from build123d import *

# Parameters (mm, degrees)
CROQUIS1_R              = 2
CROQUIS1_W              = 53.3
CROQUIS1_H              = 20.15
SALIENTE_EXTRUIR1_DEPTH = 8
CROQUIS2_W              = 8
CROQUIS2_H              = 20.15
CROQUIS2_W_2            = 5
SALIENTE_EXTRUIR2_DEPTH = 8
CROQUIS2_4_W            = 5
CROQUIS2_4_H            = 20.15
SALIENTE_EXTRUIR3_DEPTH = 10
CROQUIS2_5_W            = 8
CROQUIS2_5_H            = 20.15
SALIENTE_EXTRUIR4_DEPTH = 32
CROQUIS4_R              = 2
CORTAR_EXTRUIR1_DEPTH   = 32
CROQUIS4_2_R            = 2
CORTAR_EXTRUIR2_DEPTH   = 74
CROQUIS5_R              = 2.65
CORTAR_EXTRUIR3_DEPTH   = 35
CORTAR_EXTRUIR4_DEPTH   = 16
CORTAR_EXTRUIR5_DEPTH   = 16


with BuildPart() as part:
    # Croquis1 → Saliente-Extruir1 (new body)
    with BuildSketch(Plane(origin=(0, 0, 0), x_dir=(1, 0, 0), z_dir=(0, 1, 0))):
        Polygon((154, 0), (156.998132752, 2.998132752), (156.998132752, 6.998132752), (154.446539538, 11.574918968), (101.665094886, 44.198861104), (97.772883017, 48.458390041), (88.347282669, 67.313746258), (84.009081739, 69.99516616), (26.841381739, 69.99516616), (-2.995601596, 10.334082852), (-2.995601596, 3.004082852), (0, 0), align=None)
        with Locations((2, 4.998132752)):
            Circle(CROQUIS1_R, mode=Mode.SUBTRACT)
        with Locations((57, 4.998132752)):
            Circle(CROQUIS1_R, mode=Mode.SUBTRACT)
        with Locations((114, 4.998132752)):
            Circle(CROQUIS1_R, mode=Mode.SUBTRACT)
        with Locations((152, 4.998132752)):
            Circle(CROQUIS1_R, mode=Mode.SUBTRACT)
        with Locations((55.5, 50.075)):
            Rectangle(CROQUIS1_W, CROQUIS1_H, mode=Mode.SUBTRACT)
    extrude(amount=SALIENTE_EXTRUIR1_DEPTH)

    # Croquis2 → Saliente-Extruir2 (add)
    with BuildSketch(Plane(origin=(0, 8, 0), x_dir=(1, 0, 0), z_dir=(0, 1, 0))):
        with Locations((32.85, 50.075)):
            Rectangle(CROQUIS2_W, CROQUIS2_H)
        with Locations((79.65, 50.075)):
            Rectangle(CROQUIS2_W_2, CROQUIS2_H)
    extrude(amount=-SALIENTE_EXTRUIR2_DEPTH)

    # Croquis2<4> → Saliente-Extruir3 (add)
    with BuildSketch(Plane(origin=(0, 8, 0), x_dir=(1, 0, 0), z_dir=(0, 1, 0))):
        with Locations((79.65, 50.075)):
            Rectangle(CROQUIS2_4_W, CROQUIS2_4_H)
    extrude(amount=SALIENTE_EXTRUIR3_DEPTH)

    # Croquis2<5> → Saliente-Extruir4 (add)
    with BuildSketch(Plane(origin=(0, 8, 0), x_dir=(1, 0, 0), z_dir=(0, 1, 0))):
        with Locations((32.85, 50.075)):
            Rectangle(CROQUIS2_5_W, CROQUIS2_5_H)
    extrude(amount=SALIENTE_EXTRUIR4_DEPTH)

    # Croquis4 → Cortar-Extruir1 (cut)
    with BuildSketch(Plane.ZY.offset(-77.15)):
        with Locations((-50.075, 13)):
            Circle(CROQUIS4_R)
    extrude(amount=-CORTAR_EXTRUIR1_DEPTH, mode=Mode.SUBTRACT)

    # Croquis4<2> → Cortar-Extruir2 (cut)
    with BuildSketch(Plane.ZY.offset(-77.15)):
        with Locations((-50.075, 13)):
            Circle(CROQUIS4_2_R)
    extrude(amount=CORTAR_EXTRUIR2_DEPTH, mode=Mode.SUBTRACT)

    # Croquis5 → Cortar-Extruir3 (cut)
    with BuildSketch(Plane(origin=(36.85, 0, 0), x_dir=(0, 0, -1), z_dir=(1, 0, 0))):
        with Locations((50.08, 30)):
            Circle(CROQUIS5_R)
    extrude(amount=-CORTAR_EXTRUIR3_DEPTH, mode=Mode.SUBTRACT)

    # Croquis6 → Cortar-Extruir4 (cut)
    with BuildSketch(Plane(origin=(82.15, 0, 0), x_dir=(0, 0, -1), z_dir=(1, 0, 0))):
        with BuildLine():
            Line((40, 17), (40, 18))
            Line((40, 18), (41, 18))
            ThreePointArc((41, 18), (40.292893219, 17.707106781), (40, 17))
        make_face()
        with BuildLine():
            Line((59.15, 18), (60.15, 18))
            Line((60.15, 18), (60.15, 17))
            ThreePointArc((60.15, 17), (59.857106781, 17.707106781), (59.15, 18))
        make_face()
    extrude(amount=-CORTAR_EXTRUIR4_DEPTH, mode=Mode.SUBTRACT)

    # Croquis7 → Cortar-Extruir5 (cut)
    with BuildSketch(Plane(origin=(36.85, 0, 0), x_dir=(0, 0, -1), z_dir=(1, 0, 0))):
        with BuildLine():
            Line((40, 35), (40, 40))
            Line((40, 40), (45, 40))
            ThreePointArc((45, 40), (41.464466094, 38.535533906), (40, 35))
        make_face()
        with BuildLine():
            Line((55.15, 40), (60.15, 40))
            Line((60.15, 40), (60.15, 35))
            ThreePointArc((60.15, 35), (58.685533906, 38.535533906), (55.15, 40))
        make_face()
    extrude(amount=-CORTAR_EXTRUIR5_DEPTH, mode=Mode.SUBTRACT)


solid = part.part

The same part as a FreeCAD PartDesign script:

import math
import FreeCAD as App
import Part
import Sketcher
from FreeCAD import Vector
Q = App.Units.Quantity


def add_polygon(sketch, points):
    """Adds a closed chain of lines whose ends are joined by coincident constraints."""
    first, n = sketch.GeometryCount, len(points)
    for a, b in zip(points, points[1:] + points[:1]):
        sketch.addGeometry(Part.LineSegment(App.Vector(*a, 0), App.Vector(*b, 0)), False)
    for i in range(n):
        sketch.addConstraint(Sketcher.Constraint("Coincident", first + i, 2, first + (i + 1) % n, 1))

doc = App.newDocument("Part")
params = doc.addObject("Spreadsheet::Sheet", "Params")
for row, (alias, value) in enumerate([
    ("sketch1_diameter", "4 mm"),
    ("sketch1_width", "154 mm"),
    ("sketch1_height", "4 mm"),
    ("sketch1_width2", "53.3 mm"),
    ("sketch1_length", "5.1 mm"),
    ("pad1_length", "8 mm"),
    ("sketch2_width", "8 mm"),
    ("sketch2_width2", "5 mm"),
    ("sketch2_height", "20.15 mm"),
    ("pad2_length", "8 mm"),
    ("sketch3_width", "5 mm"),
    ("sketch3_height", "20.15 mm"),
    ("pad3_length", "10 mm"),
    ("sketch4_width", "8 mm"),
    ("sketch4_height", "20.15 mm"),
    ("pad4_length", "32 mm"),
    ("sketch5_diameter", "4 mm"),
    ("pocket1_length", "32 mm"),
    ("sketch6_diameter", "4 mm"),
    ("pocket2_length", "74 mm"),
    ("sketch7_diameter", "5.3 mm"),
    ("pocket3_length", "35 mm"),
    ("sketch8_radius", "1 mm"),
    ("pocket4_length", "16 mm"),
    ("sketch9_radius", "5 mm"),
    ("pocket5_length", "16 mm"),
], start=1):
    params.set(f"A{row}", alias)
    params.set(f"B{row}", "=" + value)
    params.setAlias(f"B{row}", alias)

body = doc.addObject("PartDesign::Body", "Body")

sketch1 = body.newObject("Sketcher::SketchObject", "Sketch")
sketch1.AttachmentSupport = (doc.getObject("XZ_Plane"), [""])
sketch1.MapMode = "FlatFace"
add_polygon(sketch1, [(154, 0), (157, -3), (157, -7), (154.4, -11.6), (101.7, -44.2), (97.8, -48.5), (88.3, -67.3), (84, -70), (26.8, -70), (-3, -10.3), (-3, -3), (0, 0)])
sketch1.addGeometry(Part.Circle(Vector(2, -5, 0), Vector(0, 0, 1), 2), False)
sketch1.addGeometry(Part.Circle(Vector(57, -5, 0), Vector(0, 0, 1), 2), False)
sketch1.addGeometry(Part.Circle(Vector(114, -5, 0), Vector(0, 0, 1), 2), False)
sketch1.addGeometry(Part.Circle(Vector(152, -5, 0), Vector(0, 0, 1), 2), False)
add_polygon(sketch1, [(82.2, -40), (28.9, -40), (28.9, -60.1), (82.2, -60.1)])
sketch1.addConstraint(Sketcher.Constraint("Vertical", 1))
sketch1.addConstraint(Sketcher.Constraint("Horizontal", 7))
sketch1.addConstraint(Sketcher.Constraint("Vertical", 9))
sketch1.addConstraint(Sketcher.Constraint("Horizontal", 11))
sketch1.addConstraint(Sketcher.Constraint("Horizontal", 16))
sketch1.addConstraint(Sketcher.Constraint("Vertical", 17))
sketch1.addConstraint(Sketcher.Constraint("Horizontal", 18))
sketch1.addConstraint(Sketcher.Constraint("Vertical", 19))
sketch1.addConstraint(Sketcher.Constraint("Coincident", 10, 2, -1, 1))
sketch1.addConstraint(Sketcher.Constraint("Equal", 12, 13))
sketch1.addConstraint(Sketcher.Constraint("Equal", 13, 14))
sketch1.addConstraint(Sketcher.Constraint("Equal", 14, 15))
sketch1.addConstraint(Sketcher.Constraint("Parallel", 3, 6))
sketch1.addConstraint(Sketcher.Constraint("Horizontal", 12, 3, 13, 3))
sketch1.addConstraint(Sketcher.Constraint("Horizontal", 13, 3, 14, 3))
sketch1.addConstraint(Sketcher.Constraint("Horizontal", 14, 3, 15, 3))
sketch1.addConstraint(Sketcher.Constraint("Diameter", 12, Q("4 mm")))
sketch1.addConstraint(Sketcher.Constraint("DistanceX", 11, 1, 11, 2, Q("154 mm")))
sketch1.addConstraint(Sketcher.Constraint("DistanceY", 1, 2, 1, 1, Q("4 mm")))
sketch1.addConstraint(Sketcher.Constraint("Angle", 0, Q("-45 deg")))
sketch1.addConstraint(Sketcher.Constraint("DistanceX", 16, 2, 16, 1, Q("53.3 mm")))
sketch1.addConstraint(Sketcher.Constraint("DistanceX", -1, 1, 12, 3, Q("2 mm")))
sketch1.addConstraint(Sketcher.Constraint("DistanceX", -1, 1, 13, 3, Q("57 mm")))
sketch1.addConstraint(Sketcher.Constraint("DistanceX", -1, 1, 14, 3, Q("114 mm")))
sketch1.addConstraint(Sketcher.Constraint("DistanceX", -1, 1, 15, 3, Q("152 mm")))
sketch1.addConstraint(Sketcher.Constraint("DistanceY", 16, 2, -1, 1, Q("40 mm")))
sketch1.addConstraint(Sketcher.Constraint("DistanceY", 15, 3, 0, 2, Q("2 mm")))
sketch1.addConstraint(Sketcher.Constraint("Distance", 6, Q("5.1 mm")))
sketch1.addConstraint(Sketcher.Constraint("DistanceY", 9, 1, 9, 2, Q("7.33 mm")))
sketch1.addConstraint(Sketcher.Constraint("DistanceY", 17, 2, 17, 1, Q("20.15 mm")))
sketch1.addConstraint(Sketcher.Constraint("Angle", 2, Q("-119.14 deg")))
sketch1.addConstraint(Sketcher.Constraint("Angle", 3, Q("-148.28 deg")))
sketch1.addConstraint(Sketcher.Constraint("Angle", 4, Q("-132.42 deg")))
sketch1.addConstraint(Sketcher.Constraint("Angle", 5, Q("-116.56 deg")))
sketch1.addConstraint(Sketcher.Constraint("Angle", 8, Q("116.57 deg")))
sketch1.addConstraint(Sketcher.Constraint("Distance", 0, Q("4.24 mm")))
sketch1.addConstraint(Sketcher.Constraint("Distance", 2, Q("5.24 mm")))
sketch1.addConstraint(Sketcher.Constraint("Distance", 3, Q("62.05 mm")))
sketch1.addConstraint(Sketcher.Constraint("Distance", 4, Q("5.77 mm")))
sketch1.addConstraint(Sketcher.Constraint("Distance", 5, Q("21.08 mm")))
sketch1.addConstraint(Sketcher.Constraint("DistanceX", -1, 1, 16, 2, Q("28.85 mm")))
sketch1.addConstraint(Sketcher.Constraint("Distance", 8, Q("66.706 mm")))
sketch1.addConstraint(Sketcher.Constraint("DistanceX", 7, 2, 7, 1, Q("57.1677 mm")))
sketch1.setExpression("Constraints[32]", "Params.sketch1_diameter")
sketch1.setExpression("Constraints[33]", "Params.sketch1_width")
sketch1.setExpression("Constraints[34]", "Params.sketch1_height")
sketch1.setExpression("Constraints[36]", "Params.sketch1_width2")
sketch1.setExpression("Constraints[43]", "Params.sketch1_length")
pad1 = body.newObject("PartDesign::Pad", "Pad")
pad1.Profile = sketch1
pad1.setExpression("Length", "Params.pad1_length")
pad1.Reversed = True

sketch2 = body.newObject("Sketcher::SketchObject", "Sketch001")
sketch2.AttachmentSupport = (doc.getObject("XZ_Plane"), [""])
sketch2.MapMode = "FlatFace"
sketch2.AttachmentOffset = App.Placement(Vector(0, 0, -8), App.Rotation())
add_polygon(sketch2, [(29, -60), (29, -40), (37, -40), (37, -60)])
add_polygon(sketch2, [(77, -60), (77, -40), (82, -40), (82, -60)])
sketch2.addConstraint(Sketcher.Constraint("Vertical", 0))
sketch2.addConstraint(Sketcher.Constraint("Horizontal", 1))
sketch2.addConstraint(Sketcher.Constraint("Vertical", 2))
sketch2.addConstraint(Sketcher.Constraint("Horizontal", 3))
sketch2.addConstraint(Sketcher.Constraint("Vertical", 4))
sketch2.addConstraint(Sketcher.Constraint("Horizontal", 5))
sketch2.addConstraint(Sketcher.Constraint("Vertical", 6))
sketch2.addConstraint(Sketcher.Constraint("Horizontal", 7))
sketch2.addConstraint(Sketcher.Constraint("Horizontal", 1, 2, 4, 2))
sketch2.addConstraint(Sketcher.Constraint("Horizontal", 3, 2, 6, 2))
sketch2.addConstraint(Sketcher.Constraint("DistanceX", 1, 1, 1, 2, Q("8 mm")))
sketch2.addConstraint(Sketcher.Constraint("DistanceX", 5, 1, 5, 2, Q("5 mm")))
sketch2.addConstraint(Sketcher.Constraint("DistanceY", 0, 2, -1, 1, Q("40 mm")))
sketch2.addConstraint(Sketcher.Constraint("DistanceY", 0, 1, 0, 2, Q("20.15 mm")))
sketch2.addConstraint(Sketcher.Constraint("DistanceX", 1, 2, 4, 2, Q("40.3 mm")))
sketch2.addConstraint(Sketcher.Constraint("DistanceX", -1, 1, 0, 2, Q("28.85 mm")))
sketch2.setExpression("Constraints[18]", "Params.sketch2_width")
sketch2.setExpression("Constraints[19]", "Params.sketch2_width2")
sketch2.setExpression("Constraints[21]", "Params.sketch2_height")
pad2 = body.newObject("PartDesign::Pad", "Pad001")
pad2.Profile = sketch2
pad2.setExpression("Length", "Params.pad2_length")

sketch3 = body.newObject("Sketcher::SketchObject", "Sketch002")
sketch3.AttachmentSupport = (doc.getObject("XZ_Plane"), [""])
sketch3.MapMode = "FlatFace"
sketch3.AttachmentOffset = App.Placement(Vector(0, 0, -8), App.Rotation())
add_polygon(sketch3, [(77, -60), (77, -40), (82, -40), (82, -60)])
sketch3.addConstraint(Sketcher.Constraint("Vertical", 0))
sketch3.addConstraint(Sketcher.Constraint("Horizontal", 1))
sketch3.addConstraint(Sketcher.Constraint("Vertical", 2))
sketch3.addConstraint(Sketcher.Constraint("Horizontal", 3))
sketch3.addConstraint(Sketcher.Constraint("DistanceX", 1, 1, 1, 2, Q("5 mm")))
sketch3.addConstraint(Sketcher.Constraint("DistanceY", 0, 2, -1, 1, Q("40 mm")))
sketch3.addConstraint(Sketcher.Constraint("DistanceY", 0, 1, 0, 2, Q("20.15 mm")))
sketch3.addConstraint(Sketcher.Constraint("DistanceX", -1, 1, 0, 2, Q("77.15 mm")))
sketch3.setExpression("Constraints[8]", "Params.sketch3_width")
sketch3.setExpression("Constraints[10]", "Params.sketch3_height")
pad3 = body.newObject("PartDesign::Pad", "Pad002")
pad3.Profile = sketch3
pad3.setExpression("Length", "Params.pad3_length")
pad3.Reversed = True

sketch4 = body.newObject("Sketcher::SketchObject", "Sketch003")
sketch4.AttachmentSupport = (doc.getObject("XZ_Plane"), [""])
sketch4.MapMode = "FlatFace"
sketch4.AttachmentOffset = App.Placement(Vector(0, 0, -8), App.Rotation())
add_polygon(sketch4, [(29, -60), (29, -40), (37, -40), (37, -60)])
sketch4.addConstraint(Sketcher.Constraint("Vertical", 0))
sketch4.addConstraint(Sketcher.Constraint("Horizontal", 1))
sketch4.addConstraint(Sketcher.Constraint("Vertical", 2))
sketch4.addConstraint(Sketcher.Constraint("Horizontal", 3))
sketch4.addConstraint(Sketcher.Constraint("DistanceX", 1, 1, 1, 2, Q("8 mm")))
sketch4.addConstraint(Sketcher.Constraint("DistanceY", 0, 2, -1, 1, Q("40 mm")))
sketch4.addConstraint(Sketcher.Constraint("DistanceY", 0, 1, 0, 2, Q("20.15 mm")))
sketch4.addConstraint(Sketcher.Constraint("DistanceX", -1, 1, 0, 2, Q("28.85 mm")))
sketch4.setExpression("Constraints[8]", "Params.sketch4_width")
sketch4.setExpression("Constraints[10]", "Params.sketch4_height")
pad4 = body.newObject("PartDesign::Pad", "Pad003")
pad4.Profile = sketch4
pad4.setExpression("Length", "Params.pad4_length")
pad4.Reversed = True

sketch5 = body.newObject("Sketcher::SketchObject", "Sketch004")
sketch5.AttachmentSupport = (doc.getObject("YZ_Plane"), [""])
sketch5.MapMode = "FlatFace"
sketch5.AttachmentOffset = App.Placement(Vector(0, 0, 77.15), App.Rotation())
sketch5.addGeometry(Part.Circle(Vector(13, -50.1, 0), Vector(0, 0, 1), 2), False)
sketch5.addConstraint(Sketcher.Constraint("Diameter", 0, Q("4 mm")))
sketch5.addConstraint(Sketcher.Constraint("DistanceX", -1, 1, 0, 3, Q("13 mm")))
sketch5.addConstraint(Sketcher.Constraint("DistanceY", 0, 3, -1, 1, Q("50.075 mm")))
sketch5.setExpression("Constraints[0]", "Params.sketch5_diameter")
pocket1 = body.newObject("PartDesign::Pocket", "Pocket")
pocket1.Profile = sketch5
pocket1.setExpression("Length", "Params.pocket1_length")
pocket1.Reversed = True

sketch6 = body.newObject("Sketcher::SketchObject", "Sketch005")
sketch6.AttachmentSupport = (doc.getObject("YZ_Plane"), [""])
sketch6.MapMode = "FlatFace"
sketch6.AttachmentOffset = App.Placement(Vector(0, 0, 77.15), App.Rotation())
sketch6.addGeometry(Part.Circle(Vector(13, -50.1, 0), Vector(0, 0, 1), 2), False)
sketch6.addConstraint(Sketcher.Constraint("Diameter", 0, Q("4 mm")))
sketch6.addConstraint(Sketcher.Constraint("DistanceX", -1, 1, 0, 3, Q("13 mm")))
sketch6.addConstraint(Sketcher.Constraint("DistanceY", 0, 3, -1, 1, Q("50.075 mm")))
sketch6.setExpression("Constraints[0]", "Params.sketch6_diameter")
pocket2 = body.newObject("PartDesign::Pocket", "Pocket001")
pocket2.Profile = sketch6
pocket2.setExpression("Length", "Params.pocket2_length")

sketch7 = body.newObject("Sketcher::SketchObject", "Sketch006")
sketch7.AttachmentSupport = (doc.getObject("YZ_Plane"), [""])
sketch7.MapMode = "FlatFace"
sketch7.AttachmentOffset = App.Placement(Vector(0, 0, 36.85), App.Rotation())
sketch7.addGeometry(Part.Circle(Vector(30, -50.1, 0), Vector(0, 0, 1), 2.6), False)
sketch7.addConstraint(Sketcher.Constraint("Diameter", 0, Q("5.3 mm")))
sketch7.addConstraint(Sketcher.Constraint("DistanceX", -1, 1, 0, 3, Q("30 mm")))
sketch7.addConstraint(Sketcher.Constraint("DistanceY", 0, 3, -1, 1, Q("50.08 mm")))
sketch7.setExpression("Constraints[0]", "Params.sketch7_diameter")
pocket3 = body.newObject("PartDesign::Pocket", "Pocket002")
pocket3.Profile = sketch7
pocket3.setExpression("Length", "Params.pocket3_length")

sketch8 = body.newObject("Sketcher::SketchObject", "Sketch007")
sketch8.AttachmentSupport = (doc.getObject("YZ_Plane"), [""])
sketch8.MapMode = "FlatFace"
sketch8.AttachmentOffset = App.Placement(Vector(0, 0, 82.15), App.Rotation())
sketch8.addGeometry(Part.LineSegment(Vector(18, -40, 0), Vector(17, -40, 0)), False)
sketch8.addGeometry(Part.ArcOfCircle(Part.Circle(Vector(17, -41, 0), Vector(0, 0, 1), 1), math.radians(0), math.radians(90)), False)
sketch8.addGeometry(Part.LineSegment(Vector(18, -41, 0), Vector(18, -40, 0)), False)
sketch8.addGeometry(Part.LineSegment(Vector(18, -60.1, 0), Vector(18, -59.1, 0)), False)
sketch8.addGeometry(Part.ArcOfCircle(Part.Circle(Vector(17, -59.1, 0), Vector(0, 0, 1), 1), math.radians(-90), math.radians(0)), False)
sketch8.addGeometry(Part.LineSegment(Vector(17, -60.1, 0), Vector(18, -60.1, 0)), False)
sketch8.addConstraint(Sketcher.Constraint("Tangent", 0, 2, 1, 2))
sketch8.addConstraint(Sketcher.Constraint("Tangent", 1, 1, 2, 1))
sketch8.addConstraint(Sketcher.Constraint("Coincident", 2, 2, 0, 1))
sketch8.addConstraint(Sketcher.Constraint("Tangent", 3, 2, 4, 2))
sketch8.addConstraint(Sketcher.Constraint("Tangent", 4, 1, 5, 1))
sketch8.addConstraint(Sketcher.Constraint("Coincident", 5, 2, 3, 1))
sketch8.addConstraint(Sketcher.Constraint("Horizontal", 0))
sketch8.addConstraint(Sketcher.Constraint("Vertical", 2))
sketch8.addConstraint(Sketcher.Constraint("Vertical", 3))
sketch8.addConstraint(Sketcher.Constraint("Horizontal", 5))
sketch8.addConstraint(Sketcher.Constraint("Equal", 1, 4))
sketch8.addConstraint(Sketcher.Constraint("Vertical", 1, 3, 4, 3))
sketch8.addConstraint(Sketcher.Constraint("Radius", 1, Q("1 mm")))
sketch8.addConstraint(Sketcher.Constraint("DistanceX", -1, 1, 1, 3, Q("17 mm")))
sketch8.addConstraint(Sketcher.Constraint("DistanceY", 1, 3, -1, 1, Q("41 mm")))
sketch8.addConstraint(Sketcher.Constraint("DistanceY", 4, 3, -1, 1, Q("59.15 mm")))
sketch8.setExpression("Constraints[12]", "Params.sketch8_radius")
pocket4 = body.newObject("PartDesign::Pocket", "Pocket003")
pocket4.Profile = sketch8
pocket4.setExpression("Length", "Params.pocket4_length")

sketch9 = body.newObject("Sketcher::SketchObject", "Sketch008")
sketch9.AttachmentSupport = (doc.getObject("YZ_Plane"), [""])
sketch9.MapMode = "FlatFace"
sketch9.AttachmentOffset = App.Placement(Vector(0, 0, 36.85), App.Rotation())
sketch9.addGeometry(Part.LineSegment(Vector(40, -40, 0), Vector(35, -40, 0)), False)
sketch9.addGeometry(Part.ArcOfCircle(Part.Circle(Vector(35, -45, 0), Vector(0, 0, 1), 5), math.radians(0), math.radians(90)), False)
sketch9.addGeometry(Part.LineSegment(Vector(40, -45, 0), Vector(40, -40, 0)), False)
sketch9.addGeometry(Part.LineSegment(Vector(40, -60, 0), Vector(40, -55, 0)), False)
sketch9.addGeometry(Part.ArcOfCircle(Part.Circle(Vector(35, -55, 0), Vector(0, 0, 1), 5), math.radians(-90), math.radians(0)), False)
sketch9.addGeometry(Part.LineSegment(Vector(35, -60, 0), Vector(40, -60, 0)), False)
sketch9.addConstraint(Sketcher.Constraint("Tangent", 0, 2, 1, 2))
sketch9.addConstraint(Sketcher.Constraint("Tangent", 1, 1, 2, 1))
sketch9.addConstraint(Sketcher.Constraint("Coincident", 2, 2, 0, 1))
sketch9.addConstraint(Sketcher.Constraint("Tangent", 3, 2, 4, 2))
sketch9.addConstraint(Sketcher.Constraint("Tangent", 4, 1, 5, 1))
sketch9.addConstraint(Sketcher.Constraint("Coincident", 5, 2, 3, 1))
sketch9.addConstraint(Sketcher.Constraint("Horizontal", 0))
sketch9.addConstraint(Sketcher.Constraint("Vertical", 2))
sketch9.addConstraint(Sketcher.Constraint("Vertical", 3))
sketch9.addConstraint(Sketcher.Constraint("Horizontal", 5))
sketch9.addConstraint(Sketcher.Constraint("Equal", 1, 4))
sketch9.addConstraint(Sketcher.Constraint("Vertical", 1, 3, 4, 3))
sketch9.addConstraint(Sketcher.Constraint("Radius", 1, Q("5 mm")))
sketch9.addConstraint(Sketcher.Constraint("DistanceX", -1, 1, 1, 3, Q("35 mm")))
sketch9.addConstraint(Sketcher.Constraint("DistanceY", 1, 3, -1, 1, Q("45 mm")))
sketch9.addConstraint(Sketcher.Constraint("DistanceY", 4, 3, -1, 1, Q("55.15 mm")))
sketch9.setExpression("Constraints[12]", "Params.sketch9_radius")
pocket5 = body.newObject("PartDesign::Pocket", "Pocket004")
pocket5.Profile = sketch9
pocket5.setExpression("Length", "Params.pocket5_length")

doc.recompute()
